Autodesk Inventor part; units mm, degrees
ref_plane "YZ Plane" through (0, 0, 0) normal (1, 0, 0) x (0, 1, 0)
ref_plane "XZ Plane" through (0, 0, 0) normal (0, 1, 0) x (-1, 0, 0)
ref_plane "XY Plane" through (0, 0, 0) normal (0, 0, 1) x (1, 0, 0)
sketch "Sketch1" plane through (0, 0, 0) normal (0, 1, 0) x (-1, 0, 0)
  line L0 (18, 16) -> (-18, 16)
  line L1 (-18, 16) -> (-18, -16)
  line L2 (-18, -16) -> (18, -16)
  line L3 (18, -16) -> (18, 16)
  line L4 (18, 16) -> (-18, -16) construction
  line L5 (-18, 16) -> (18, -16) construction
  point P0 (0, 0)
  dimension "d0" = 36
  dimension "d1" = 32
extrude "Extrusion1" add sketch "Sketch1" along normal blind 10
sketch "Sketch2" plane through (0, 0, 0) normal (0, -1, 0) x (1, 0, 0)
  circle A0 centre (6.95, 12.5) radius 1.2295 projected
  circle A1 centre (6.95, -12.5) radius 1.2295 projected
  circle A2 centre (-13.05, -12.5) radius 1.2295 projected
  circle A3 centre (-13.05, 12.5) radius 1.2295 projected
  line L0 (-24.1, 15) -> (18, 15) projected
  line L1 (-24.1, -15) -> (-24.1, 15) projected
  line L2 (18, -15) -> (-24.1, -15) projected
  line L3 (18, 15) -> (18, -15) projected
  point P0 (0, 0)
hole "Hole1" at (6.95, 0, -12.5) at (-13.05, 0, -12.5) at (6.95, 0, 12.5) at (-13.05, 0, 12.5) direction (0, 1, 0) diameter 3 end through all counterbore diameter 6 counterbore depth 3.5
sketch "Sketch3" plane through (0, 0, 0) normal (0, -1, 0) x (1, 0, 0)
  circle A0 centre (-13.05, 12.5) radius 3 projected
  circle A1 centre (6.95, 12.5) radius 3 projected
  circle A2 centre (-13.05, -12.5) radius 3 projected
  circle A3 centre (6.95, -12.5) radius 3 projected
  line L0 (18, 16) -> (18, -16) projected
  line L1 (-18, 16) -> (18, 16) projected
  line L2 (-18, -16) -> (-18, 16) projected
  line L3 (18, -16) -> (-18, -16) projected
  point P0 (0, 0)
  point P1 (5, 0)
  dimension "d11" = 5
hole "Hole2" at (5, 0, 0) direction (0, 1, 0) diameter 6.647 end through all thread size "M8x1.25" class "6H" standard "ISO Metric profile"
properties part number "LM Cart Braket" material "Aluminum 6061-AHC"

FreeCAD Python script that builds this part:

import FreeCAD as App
import Part
import Sketcher
Q = App.Units.Quantity

doc = App.newDocument("Part")
body = doc.addObject("PartDesign::Body", "Body")

sketch1 = body.newObject("Sketcher::SketchObject", "Sketch")
sketch1.AttachmentSupport = (doc.getObject("XZ_Plane"), [""])
sketch1.MapMode = "FlatFace"
sketch1.addGeometry(Part.LineSegment(App.Vector(-18, -16, 0), App.Vector(-18, 16, 0)), False)
sketch1.addGeometry(Part.LineSegment(App.Vector(-18, 16, 0), App.Vector(18, 16, 0)), False)
sketch1.addGeometry(Part.LineSegment(App.Vector(18, 16, 0), App.Vector(18, -16, 0)), False)
sketch1.addGeometry(Part.LineSegment(App.Vector(18, -16, 0), App.Vector(-18, -16, 0)), False)
sketch1.addConstraint(Sketcher.Constraint("Coincident", 0, 2, 1, 1))
sketch1.addConstraint(Sketcher.Constraint("Coincident", 1, 2, 2, 1))
sketch1.addConstraint(Sketcher.Constraint("Coincident", 2, 2, 3, 1))
sketch1.addConstraint(Sketcher.Constraint("Coincident", 3, 2, 0, 1))
sketch1.addConstraint(Sketcher.Constraint("Vertical", 0))
sketch1.addConstraint(Sketcher.Constraint("Horizontal", 1))
sketch1.addConstraint(Sketcher.Constraint("Vertical", 2))
sketch1.addConstraint(Sketcher.Constraint("Horizontal", 3))
sketch1.addConstraint(Sketcher.Constraint("Symmetric", 0, 2, 2, 2, -1, 1))
sketch1.addConstraint(Sketcher.Constraint("DistanceX", 1, 1, 1, 2, Q("36 mm")))
sketch1.addConstraint(Sketcher.Constraint("DistanceY", 0, 1, 0, 2, Q("32 mm")))
pad1 = body.newObject("PartDesign::Pad", "Pad")
pad1.Profile = sketch1
pad1.Length = 10
pad1.Reversed = True

sketch2 = body.newObject("Sketcher::SketchObject", "Sketch001")
sketch2.AttachmentSupport = (doc.getObject("XZ_Plane"), [""])
sketch2.MapMode = "FlatFace"
sketch2.addGeometry(Part.Circle(App.Vector(7, -12.5, 0), App.Vector(0, 0, 1), 1.5), False)
sketch2.addGeometry(Part.Circle(App.Vector(-13.1, -12.5, 0), App.Vector(0, 0, 1), 1.5), False)
sketch2.addGeometry(Part.Circle(App.Vector(7, 12.5, 0), App.Vector(0, 0, 1), 1.5), False)
sketch2.addGeometry(Part.Circle(App.Vector(-13.1, 12.5, 0), App.Vector(0, 0, 1), 1.5), False)
sketch2.addConstraint(Sketcher.Constraint("Equal", 0, 1))
sketch2.addConstraint(Sketcher.Constraint("Equal", 1, 2))
sketch2.addConstraint(Sketcher.Constraint("Equal", 2, 3))
sketch2.addConstraint(Sketcher.Constraint("Symmetric", 0, 3, 2, 3, -1))
sketch2.addConstraint(Sketcher.Constraint("Symmetric", 1, 3, 3, 3, -1))
sketch2.addConstraint(Sketcher.Constraint("Horizontal", 0, 3, 1, 3))
sketch2.addConstraint(Sketcher.Constraint("Diameter", 0, Q("3 mm")))
sketch2.addConstraint(Sketcher.Constraint("DistanceX", 1, 3, 0, 3, Q("20 mm")))
sketch2.addConstraint(Sketcher.Constraint("DistanceY", 0, 3, 2, 3, Q("25 mm")))
sketch2.addConstraint(Sketcher.Constraint("DistanceX", -1, 1, 0, 3, Q("6.95 mm")))
doc.recompute()
hole = body.newObject("PartDesign::Hole", "Hole")
hole.Profile = sketch2
hole.ThreadType = "None"
hole.Diameter = 3
hole.DepthType = "ThroughAll"
hole.HoleCutType = "Counterbore"
hole.HoleCutDiameter = 6
hole.HoleCutDepth = 3.5

sketch3 = body.newObject("Sketcher::SketchObject", "Sketch002")
sketch3.AttachmentSupport = (doc.getObject("XZ_Plane"), [""])
sketch3.MapMode = "FlatFace"
sketch3.addGeometry(Part.Circle(App.Vector(5, 0, 0), App.Vector(0, 0, 1), 3.3), False)
sketch3.addConstraint(Sketcher.Constraint("PointOnObject", 0, 3, -1))
sketch3.addConstraint(Sketcher.Constraint("Diameter", 0, Q("6.647 mm")))
sketch3.addConstraint(Sketcher.Constraint("DistanceX", -1, 1, 0, 3, Q("5 mm")))
doc.recompute()
hole2 = body.newObject("PartDesign::Hole", "Hole001")
hole2.Profile = sketch3
hole2.ThreadType = "None"
hole2.Diameter = 6.647
hole2.DepthType = "ThroughAll"

doc.recompute()
